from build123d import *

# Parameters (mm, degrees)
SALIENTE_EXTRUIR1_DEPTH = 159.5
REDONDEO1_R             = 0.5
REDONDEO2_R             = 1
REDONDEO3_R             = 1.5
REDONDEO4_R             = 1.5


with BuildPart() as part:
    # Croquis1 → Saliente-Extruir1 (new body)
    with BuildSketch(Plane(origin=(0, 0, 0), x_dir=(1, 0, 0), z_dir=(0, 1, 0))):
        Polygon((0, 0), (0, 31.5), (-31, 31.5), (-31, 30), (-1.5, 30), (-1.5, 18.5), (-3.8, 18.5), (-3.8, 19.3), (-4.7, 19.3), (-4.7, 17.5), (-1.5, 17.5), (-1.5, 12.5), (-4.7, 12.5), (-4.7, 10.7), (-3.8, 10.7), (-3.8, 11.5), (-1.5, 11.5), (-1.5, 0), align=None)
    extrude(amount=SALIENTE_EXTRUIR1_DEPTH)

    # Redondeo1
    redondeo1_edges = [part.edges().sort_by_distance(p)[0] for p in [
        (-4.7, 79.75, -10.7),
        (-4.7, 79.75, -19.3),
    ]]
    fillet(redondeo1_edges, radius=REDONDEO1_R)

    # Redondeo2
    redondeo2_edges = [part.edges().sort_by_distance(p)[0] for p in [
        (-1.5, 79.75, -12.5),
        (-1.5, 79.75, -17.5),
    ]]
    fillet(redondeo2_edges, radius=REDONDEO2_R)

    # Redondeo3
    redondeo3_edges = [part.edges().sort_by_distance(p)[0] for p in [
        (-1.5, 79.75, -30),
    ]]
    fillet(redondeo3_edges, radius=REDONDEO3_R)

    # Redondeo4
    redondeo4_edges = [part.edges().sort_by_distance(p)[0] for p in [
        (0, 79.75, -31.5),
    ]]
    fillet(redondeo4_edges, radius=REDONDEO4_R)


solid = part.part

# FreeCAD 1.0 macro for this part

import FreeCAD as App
import Part
import Sketcher
Q = App.Units.Quantity


def edges_at(feature, points):
    """Names of the edges that pass closest to the given points."""
    edges = feature.Shape.Edges
    near = lambda p: min(range(len(edges)), key=lambda i: edges[i].distToShape(Part.Vertex(*p))[0])
    return sorted({f"Edge{near(p) + 1}" for p in points})

doc = App.newDocument("Part")
params = doc.addObject("Spreadsheet::Sheet", "Params")
for row, (alias, value) in enumerate([
    ("sketch1_width", "31 mm"),
    ("sketch1_height", "5 mm"),
    ("sketch1_width2", "29.5 mm"),
    ("sketch1_width3", "2.3 mm"),
    ("sketch1_width4", "0.9 mm"),
    ("pad1_length", "159.5 mm"),
    ("fillet_radius", "0.5 mm"),
    ("fillet2_radius", "1 mm"),
    ("fillet3_radius", "1.5 mm"),
    ("fillet4_radius", "1.5 mm"),
], start=1):
    params.set(f"A{row}", alias)
    params.set(f"B{row}", "=" + value)
    params.setAlias(f"B{row}", alias)

body = doc.addObject("PartDesign::Body", "Body")

sketch1 = body.newObject("Sketcher::SketchObject", "Sketch")
sketch1.AttachmentSupport = (doc.getObject("XZ_Plane"), [""])
sketch1.MapMode = "FlatFace"
sketch1.addGeometry([
    Part.LineSegment(App.Vector(0, 0, 0), App.Vector(0, -31.5, 0)),
    Part.LineSegment(App.Vector(0, -31.5, 0), App.Vector(-31, -31.5, 0)),
    Part.LineSegment(App.Vector(-31, -31.5, 0), App.Vector(-31, -30, 0)),
    Part.LineSegment(App.Vector(-31, -30, 0), App.Vector(-1.5, -30, 0)),
    Part.LineSegment(App.Vector(-1.5, -30, 0), App.Vector(-1.5, -18.5, 0)),
    Part.LineSegment(App.Vector(-1.5, -18.5, 0), App.Vector(-3.8, -18.5, 0)),
    Part.LineSegment(App.Vector(-3.8, -18.5, 0), App.Vector(-3.8, -19.3, 0)),
    Part.LineSegment(App.Vector(-3.8, -19.3, 0), App.Vector(-4.7, -19.3, 0)),
    Part.LineSegment(App.Vector(-4.7, -19.3, 0), App.Vector(-4.7, -17.5, 0)),
    Part.LineSegment(App.Vector(-4.7, -17.5, 0), App.Vector(-1.5, -17.5, 0)),
    Part.LineSegment(App.Vector(-1.5, -17.5, 0), App.Vector(-1.5, -12.5, 0)),
    Part.LineSegment(App.Vector(-1.5, -12.5, 0), App.Vector(-4.7, -12.5, 0)),
    Part.LineSegment(App.Vector(-4.7, -12.5, 0), App.Vector(-4.7, -10.7, 0)),
    Part.LineSegment(App.Vector(-4.7, -10.7, 0), App.Vector(-3.8, -10.7, 0)),
    Part.LineSegment(App.Vector(-3.8, -10.7, 0), App.Vector(-3.8, -11.5, 0)),
    Part.LineSegment(App.Vector(-3.8, -11.5, 0), App.Vector(-1.5, -11.5, 0)),
    Part.LineSegment(App.Vector(-1.5, -11.5, 0), App.Vector(-1.5, 0, 0)),
    Part.LineSegment(App.Vector(-1.5, 0, 0), App.Vector(0, 0, 0)),
], False)
sketch1.addConstraint([
    Sketcher.Constraint("Coincident", 0, 2, 1, 1),
    Sketcher.Constraint("Coincident", 1, 2, 2, 1),
    Sketcher.Constraint("Coincident", 2, 2, 3, 1),
    Sketcher.Constraint("Coincident", 3, 2, 4, 1),
    Sketcher.Constraint("Coincident", 4, 2, 5, 1),
    Sketcher.Constraint("Coincident", 5, 2, 6, 1),
    Sketcher.Constraint("Coincident", 6, 2, 7, 1),
    Sketcher.Constraint("Coincident", 7, 2, 8, 1),
    Sketcher.Constraint("Coincident", 8, 2, 9, 1),
    Sketcher.Constraint("Coincident", 9, 2, 10, 1),
    Sketcher.Constraint("Coincident", 10, 2, 11, 1),
    Sketcher.Constraint("Coincident", 11, 2, 12, 1),
    Sketcher.Constraint("Coincident", 12, 2, 13, 1),
    Sketcher.Constraint("Coincident", 13, 2, 14, 1),
    Sketcher.Constraint("Coincident", 14, 2, 15, 1),
    Sketcher.Constraint("Coincident", 15, 2, 16, 1),
    Sketcher.Constraint("Coincident", 16, 2, 17, 1),
    Sketcher.Constraint("Coincident", 17, 2, 0, 1),
    Sketcher.Constraint("Vertical", 0),
    Sketcher.Constraint("Horizontal", 1),
    Sketcher.Constraint("Vertical", 2),
    Sketcher.Constraint("Horizontal", 3),
    Sketcher.Constraint("Vertical", 4),
    Sketcher.Constraint("Horizontal", 5),
    Sketcher.Constraint("Vertical", 6),
    Sketcher.Constraint("Horizontal", 7),
    Sketcher.Constraint("Vertical", 8),
    Sketcher.Constraint("Horizontal", 9),
    Sketcher.Constraint("Vertical", 10),
    Sketcher.Constraint("Horizontal", 11),
    Sketcher.Constraint("Vertical", 12),
    Sketcher.Constraint("Horizontal", 13),
    Sketcher.Constraint("Vertical", 14),
    Sketcher.Constraint("Horizontal", 15),
    Sketcher.Constraint("Vertical", 16),
    Sketcher.Constraint("Horizontal", 17),
    Sketcher.Constraint("Coincident", 17, 2, -1, 1),
    Sketcher.Constraint("Vertical", 4, 2, 9, 2),
    Sketcher.Constraint("Vertical", 8, 2, 11, 2),
    Sketcher.Constraint("Vertical", 6, 2, 13, 2),
    Sketcher.Constraint("Vertical", 10, 2, 15, 2),
    Sketcher.Constraint("Equal", 17, 2),
    Sketcher.Constraint("Equal", 8, 12),
    Sketcher.Constraint("Equal", 6, 14),
    Sketcher.Constraint("Equal", 4, 16),
    Sketcher.Constraint("DistanceX", 1, 2, 1, 1, Q("31 mm")),
    Sketcher.Constraint("DistanceY", 10, 1, 10, 2, Q("5 mm")),
    Sketcher.Constraint("DistanceX", 3, 1, 3, 2, Q("29.5 mm")),
    Sketcher.Constraint("DistanceX", 5, 2, 5, 1, Q("2.3 mm")),
    Sketcher.Constraint("DistanceX", 7, 2, 7, 1, Q("0.9 mm")),
    Sketcher.Constraint("DistanceY", 0, 2, 0, 1, Q("31.5 mm")),
    Sketcher.Constraint("DistanceY", 4, 1, 4, 2, Q("11.5 mm")),
    Sketcher.Constraint("DistanceY", 6, 2, 6, 1, Q("0.8 mm")),
])
sketch1.setExpression("Constraints[45]", "Params.sketch1_width")
sketch1.setExpression("Constraints[46]", "Params.sketch1_height")
sketch1.setExpression("Constraints[47]", "Params.sketch1_width2")
sketch1.setExpression("Constraints[48]", "Params.sketch1_width3")
sketch1.setExpression("Constraints[49]", "Params.sketch1_width4")
pad1 = body.newObject("PartDesign::Pad", "Pad")
pad1.Profile = sketch1
pad1.setExpression("Length", "Params.pad1_length")
pad1.Reversed = True
doc.recompute()

fillet = body.newObject("PartDesign::Fillet", "Fillet")
fillet.Base = (pad1, edges_at(pad1, [(-4.7, 79.75, -10.7), (-4.7, 79.75, -19.3)]))
fillet.setExpression("Radius", "Params.fillet_radius")
doc.recompute()

fillet2 = body.newObject("PartDesign::Fillet", "Fillet001")
fillet2.Base = (fillet, edges_at(fillet, [(-1.5, 79.75, -12.5), (-1.5, 79.75, -17.5)]))
fillet2.setExpression("Radius", "Params.fillet2_radius")
doc.recompute()

fillet3 = body.newObject("PartDesign::Fillet", "Fillet002")
fillet3.Base = (fillet2, edges_at(fillet2, [(-1.5, 79.75, -30)]))
fillet3.setExpression("Radius", "Params.fillet3_radius")
doc.recompute()

fillet4 = body.newObject("PartDesign::Fillet", "Fillet003")
fillet4.Base = (fillet3, edges_at(fillet3, [(0, 79.75, -31.5)]))
fillet4.setExpression("Radius", "Params.fillet4_radius")

doc.recompute()
